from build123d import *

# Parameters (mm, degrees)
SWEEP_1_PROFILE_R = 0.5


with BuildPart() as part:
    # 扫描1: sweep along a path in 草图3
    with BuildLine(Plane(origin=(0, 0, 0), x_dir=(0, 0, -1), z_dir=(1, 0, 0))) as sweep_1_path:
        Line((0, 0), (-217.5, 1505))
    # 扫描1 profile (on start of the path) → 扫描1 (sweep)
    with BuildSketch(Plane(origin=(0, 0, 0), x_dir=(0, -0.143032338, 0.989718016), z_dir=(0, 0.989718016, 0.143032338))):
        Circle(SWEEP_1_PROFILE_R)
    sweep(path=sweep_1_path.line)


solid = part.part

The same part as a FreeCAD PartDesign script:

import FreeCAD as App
import Part
import Sketcher

doc = App.newDocument("Part")
body = doc.addObject("PartDesign::Body", "Body")

sketch1 = body.newObject("Sketcher::SketchObject", "Sketch")
sketch1.Placement = App.Placement(App.Vector(0, 0, 0), App.Rotation(App.Vector(0, -0.143032338, 0.989718016), App.Vector(1.000000001, 0, 0), App.Vector(0, 0.989718016, 0.143032338), "ZXY"))
sketch1.addGeometry(Part.Circle(App.Vector(0, 0, 0), App.Vector(0, 0, 1), 0.5), False)
sketch1.addConstraint([
    Sketcher.Constraint("Coincident", 0, 3, -1, 1),
    Sketcher.Constraint("Diameter", 0, 1.0),
])

sketch2 = body.newObject("Sketcher::SketchObject", "Sketch001")
sketch2.Placement = App.Placement(App.Vector(0, 0, 0), App.Rotation(App.Vector(0, -0.989718016, -0.143032338), App.Vector(1.000000001, 0, 0), App.Vector(0, -0.143032338, 0.989718016), "ZXY"))
sketch2.addGeometry(Part.LineSegment(App.Vector(0, 0, 0), App.Vector(-1521, 0, 0)), False)
sketch2.addConstraint([
    Sketcher.Constraint("Horizontal", 0),
    Sketcher.Constraint("Coincident", 0, 1, -1, 1),
    Sketcher.Constraint("DistanceX", 0, 2, 0, 1, 1520.635148),
])
doc.recompute()

additivepipe = body.newObject("PartDesign::AdditivePipe", "AdditivePipe")
additivepipe.Profile = sketch1
additivepipe.Spine = (sketch2, ["Edge1"])

doc.recompute()
